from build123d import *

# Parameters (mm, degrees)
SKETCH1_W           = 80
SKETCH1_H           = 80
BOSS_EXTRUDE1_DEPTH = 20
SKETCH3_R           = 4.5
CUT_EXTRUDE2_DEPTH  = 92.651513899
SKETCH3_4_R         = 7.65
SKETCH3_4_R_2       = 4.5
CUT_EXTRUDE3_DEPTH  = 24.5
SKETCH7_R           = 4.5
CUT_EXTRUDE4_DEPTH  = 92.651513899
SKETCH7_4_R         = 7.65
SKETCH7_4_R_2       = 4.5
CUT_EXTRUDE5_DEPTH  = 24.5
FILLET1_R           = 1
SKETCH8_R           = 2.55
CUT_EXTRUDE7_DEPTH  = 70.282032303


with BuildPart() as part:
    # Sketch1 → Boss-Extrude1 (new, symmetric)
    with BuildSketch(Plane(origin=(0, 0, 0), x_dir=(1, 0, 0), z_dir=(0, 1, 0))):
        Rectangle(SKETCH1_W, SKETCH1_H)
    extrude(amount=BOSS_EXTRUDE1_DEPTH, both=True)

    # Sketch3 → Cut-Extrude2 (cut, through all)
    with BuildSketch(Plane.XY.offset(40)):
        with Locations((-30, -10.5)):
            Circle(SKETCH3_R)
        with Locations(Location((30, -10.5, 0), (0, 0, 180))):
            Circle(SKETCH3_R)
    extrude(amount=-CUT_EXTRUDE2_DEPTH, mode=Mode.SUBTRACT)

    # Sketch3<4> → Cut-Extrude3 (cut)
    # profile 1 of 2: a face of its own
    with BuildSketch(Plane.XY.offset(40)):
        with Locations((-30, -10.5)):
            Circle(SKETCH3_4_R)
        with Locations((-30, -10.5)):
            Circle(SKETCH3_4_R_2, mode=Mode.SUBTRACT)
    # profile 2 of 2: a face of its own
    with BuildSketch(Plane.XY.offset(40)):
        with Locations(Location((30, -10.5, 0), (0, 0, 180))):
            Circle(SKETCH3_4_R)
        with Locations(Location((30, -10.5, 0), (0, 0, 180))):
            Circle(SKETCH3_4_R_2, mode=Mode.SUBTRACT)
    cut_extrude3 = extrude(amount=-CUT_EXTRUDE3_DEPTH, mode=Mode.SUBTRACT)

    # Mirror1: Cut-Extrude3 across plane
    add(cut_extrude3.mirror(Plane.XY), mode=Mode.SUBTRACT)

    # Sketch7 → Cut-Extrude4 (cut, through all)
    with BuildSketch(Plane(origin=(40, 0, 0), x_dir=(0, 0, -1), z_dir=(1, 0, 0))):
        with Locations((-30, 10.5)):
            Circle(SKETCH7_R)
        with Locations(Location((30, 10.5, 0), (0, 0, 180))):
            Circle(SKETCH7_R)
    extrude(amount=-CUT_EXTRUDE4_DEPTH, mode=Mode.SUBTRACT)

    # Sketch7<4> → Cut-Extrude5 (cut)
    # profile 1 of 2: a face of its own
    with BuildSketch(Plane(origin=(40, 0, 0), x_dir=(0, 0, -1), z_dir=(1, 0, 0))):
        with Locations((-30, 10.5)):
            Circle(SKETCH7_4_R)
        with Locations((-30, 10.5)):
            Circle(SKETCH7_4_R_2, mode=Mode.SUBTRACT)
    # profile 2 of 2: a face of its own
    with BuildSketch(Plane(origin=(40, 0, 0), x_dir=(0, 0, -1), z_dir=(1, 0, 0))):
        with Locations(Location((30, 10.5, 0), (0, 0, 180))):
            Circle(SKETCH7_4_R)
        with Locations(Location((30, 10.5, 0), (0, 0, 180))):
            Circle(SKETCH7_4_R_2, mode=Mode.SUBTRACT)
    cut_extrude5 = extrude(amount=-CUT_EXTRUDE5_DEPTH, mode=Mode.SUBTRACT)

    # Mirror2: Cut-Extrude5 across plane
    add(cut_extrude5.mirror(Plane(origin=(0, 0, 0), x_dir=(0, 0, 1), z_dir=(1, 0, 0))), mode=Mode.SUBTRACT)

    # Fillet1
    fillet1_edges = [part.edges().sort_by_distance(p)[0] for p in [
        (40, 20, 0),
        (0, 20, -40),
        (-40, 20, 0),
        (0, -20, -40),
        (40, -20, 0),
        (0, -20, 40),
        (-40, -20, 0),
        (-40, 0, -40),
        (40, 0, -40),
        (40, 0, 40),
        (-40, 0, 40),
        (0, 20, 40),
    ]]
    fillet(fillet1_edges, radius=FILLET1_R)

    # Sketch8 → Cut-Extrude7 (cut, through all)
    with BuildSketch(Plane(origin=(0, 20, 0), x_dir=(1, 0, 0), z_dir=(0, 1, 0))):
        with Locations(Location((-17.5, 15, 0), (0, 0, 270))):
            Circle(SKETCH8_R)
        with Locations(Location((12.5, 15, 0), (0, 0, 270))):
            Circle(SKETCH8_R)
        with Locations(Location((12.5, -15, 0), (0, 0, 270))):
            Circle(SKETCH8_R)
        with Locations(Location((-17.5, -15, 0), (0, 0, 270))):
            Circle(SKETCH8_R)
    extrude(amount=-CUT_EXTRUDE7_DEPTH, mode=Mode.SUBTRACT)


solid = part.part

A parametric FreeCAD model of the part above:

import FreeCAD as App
import Part
import Sketcher
from FreeCAD import Vector


def edges_at(feature, points):
    """Names of the edges that pass closest to the given points."""
    edges = feature.Shape.Edges
    near = lambda p: min(range(len(edges)), key=lambda i: edges[i].distToShape(Part.Vertex(*p))[0])
    return sorted({f"Edge{near(p) + 1}" for p in points})


def add_polygon(sketch, points):
    """Adds a closed chain of lines whose ends are joined by coincident constraints."""
    first, n = sketch.GeometryCount, len(points)
    for a, b in zip(points, points[1:] + points[:1]):
        sketch.addGeometry(Part.LineSegment(App.Vector(*a, 0), App.Vector(*b, 0)), False)
    for i in range(n):
        sketch.addConstraint(Sketcher.Constraint("Coincident", first + i, 2, first + (i + 1) % n, 1))

doc = App.newDocument("Part")
body = doc.addObject("PartDesign::Body", "Body")

# Sketch on XZ plane
sketch1 = doc.addObject("Sketcher::SketchObject", "Sketch")
body.addObject(sketch1)
sketch1.AttachmentSupport = (doc.XZ_Plane, [""])
sketch1.MapMode = "FlatFace"
add_polygon(sketch1, [(-40, -40), (-40, 40), (40, 40), (40, -40)])  # lines 0-3
sketch1.addConstraint([
    Sketcher.Constraint("Vertical", 0),
    Sketcher.Constraint("Horizontal", 1),
    Sketcher.Constraint("Vertical", 2),
    Sketcher.Constraint("Horizontal", 3),
    Sketcher.Constraint("Symmetric", 0, 2, 2, 2, -1, 1),
    Sketcher.Constraint("Equal", 3, 0),
    Sketcher.Constraint("DistanceX", 1, 1, 1, 2, 80.0),
])
pad1 = doc.addObject("PartDesign::Pad", "Pad")
body.addObject(pad1)
pad1.Profile = sketch1
pad1.Length = 40
pad1.Midplane = True

# Sketch on XY plane
sketch2 = doc.addObject("Sketcher::SketchObject", "Sketch001")
body.addObject(sketch2)
sketch2.AttachmentSupport = (doc.XY_Plane, [""])
sketch2.MapMode = "FlatFace"
sketch2.AttachmentOffset = App.Placement(Vector(0, 0, 40), App.Rotation())
sketch2.addGeometry([
    Part.Circle(Vector(-30, -10.5, 0), Vector(0, 0, 1), 4.5),
    Part.Circle(Vector(30, -10.5, 0), Vector(0, 0, 1), 4.5),
], False)
sketch2.addConstraint([
    Sketcher.Constraint("Equal", 0, 1),
    Sketcher.Constraint("Symmetric", 0, 3, 1, 3, -2),
    Sketcher.Constraint("Diameter", 0, 9.0),
    Sketcher.Constraint("DistanceX", 0, 3, -1, 1, 30.0),
    Sketcher.Constraint("DistanceY", 0, 3, -1, 1, 10.5),
])
pocket1 = doc.addObject("PartDesign::Pocket", "Pocket")
body.addObject(pocket1)
pocket1.Profile = sketch2
pocket1.Type = "ThroughAll"

# Sketch on XY plane
sketch3 = doc.addObject("Sketcher::SketchObject", "Sketch002")
body.addObject(sketch3)
sketch3.AttachmentSupport = (doc.XY_Plane, [""])
sketch3.MapMode = "FlatFace"
sketch3.AttachmentOffset = App.Placement(Vector(0, 0, 40), App.Rotation())
sketch3.addGeometry([
    Part.Circle(Vector(-30, -10.5, 0), Vector(0, 0, 1), 7.7),
    Part.Circle(Vector(-30, -10.5, 0), Vector(0, 0, 1), 4.5),
    Part.Circle(Vector(30, -10.5, 0), Vector(0, 0, 1), 7.7),
    Part.Circle(Vector(30, -10.5, 0), Vector(0, 0, 1), 4.5),
], False)
sketch3.addConstraint([
    Sketcher.Constraint("Coincident", 1, 3, 0, 3),
    Sketcher.Constraint("Coincident", 3, 3, 2, 3),
    Sketcher.Constraint("Equal", 0, 2),
    Sketcher.Constraint("Equal", 1, 3),
    Sketcher.Constraint("Symmetric", 0, 3, 2, 3, -2),
    Sketcher.Constraint("Diameter", 1, 9.0),
    Sketcher.Constraint("Diameter", 0, 15.3),
    Sketcher.Constraint("DistanceX", 0, 3, -1, 1, 30.0),
    Sketcher.Constraint("DistanceY", 0, 3, -1, 1, 10.5),
])
pocket2 = doc.addObject("PartDesign::Pocket", "Pocket001")
body.addObject(pocket2)
pocket2.Profile = sketch3
pocket2.Length = 24.5
doc.recompute()

mirrored = doc.addObject("PartDesign::Mirrored", "Mirrored")
body.addObject(mirrored)
mirrored.Originals = [pocket2]
mirrored.MirrorPlane = (doc.XY_Plane, [""])
body.Tip = mirrored

# Sketch on YZ plane
sketch4 = doc.addObject("Sketcher::SketchObject", "Sketch003")
body.addObject(sketch4)
sketch4.AttachmentSupport = (doc.YZ_Plane, [""])
sketch4.MapMode = "FlatFace"
sketch4.AttachmentOffset = App.Placement(Vector(0, 0, 40), App.Rotation())
sketch4.addGeometry([
    Part.Circle(Vector(10.5, 30, 0), Vector(0, 0, 1), 4.5),
    Part.Circle(Vector(10.5, -30, 0), Vector(0, 0, 1), 4.5),
], False)
sketch4.addConstraint([
    Sketcher.Constraint("Equal", 0, 1),
    Sketcher.Constraint("Symmetric", 0, 3, 1, 3, -1),
    Sketcher.Constraint("Diameter", 0, 9.0),
    Sketcher.Constraint("DistanceY", -1, 1, 0, 3, 30.0),
    Sketcher.Constraint("DistanceX", -1, 1, 0, 3, 10.5),
])
pocket3 = doc.addObject("PartDesign::Pocket", "Pocket002")
body.addObject(pocket3)
pocket3.Profile = sketch4
pocket3.Type = "ThroughAll"

# Sketch on YZ plane
sketch5 = doc.addObject("Sketcher::SketchObject", "Sketch004")
body.addObject(sketch5)
sketch5.AttachmentSupport = (doc.YZ_Plane, [""])
sketch5.MapMode = "FlatFace"
sketch5.AttachmentOffset = App.Placement(Vector(0, 0, 40), App.Rotation())
sketch5.addGeometry([
    Part.Circle(Vector(10.5, 30, 0), Vector(0, 0, 1), 7.7),
    Part.Circle(Vector(10.5, 30, 0), Vector(0, 0, 1), 4.5),
    Part.Circle(Vector(10.5, -30, 0), Vector(0, 0, 1), 7.7),
    Part.Circle(Vector(10.5, -30, 0), Vector(0, 0, 1), 4.5),
], False)
sketch5.addConstraint([
    Sketcher.Constraint("Coincident", 1, 3, 0, 3),
    Sketcher.Constraint("Coincident", 3, 3, 2, 3),
    Sketcher.Constraint("Equal", 0, 2),
    Sketcher.Constraint("Equal", 1, 3),
    Sketcher.Constraint("Symmetric", 0, 3, 2, 3, -1),
    Sketcher.Constraint("Diameter", 1, 9.0),
    Sketcher.Constraint("Diameter", 0, 15.3),
    Sketcher.Constraint("DistanceY", -1, 1, 0, 3, 30.0),
    Sketcher.Constraint("DistanceX", -1, 1, 0, 3, 10.5),
])
pocket4 = doc.addObject("PartDesign::Pocket", "Pocket003")
body.addObject(pocket4)
pocket4.Profile = sketch5
pocket4.Length = 24.5
doc.recompute()

mirrored2 = doc.addObject("PartDesign::Mirrored", "Mirrored001")
body.addObject(mirrored2)
mirrored2.Originals = [pocket4]
mirrored2.MirrorPlane = (doc.YZ_Plane, [""])
body.Tip = mirrored2
doc.recompute()

fillet = doc.addObject("PartDesign::Fillet", "Fillet")
body.addObject(fillet)
fillet.Base = (mirrored2, edges_at(mirrored2, [
    (40, 20, 0),
    (0, 20, -40),
    (-40, 20, 0),
    (0, -20, -40),
    (40, -20, 0),
    (0, -20, 40),
    (-40, -20, 0),
    (-40, 0, -40),
    (40, 0, -40),
    (40, 0, 40),
    (-40, 0, 40),
    (0, 20, 40),
]))
fillet.Radius = 1

# Sketch on XZ plane
sketch6 = doc.addObject("Sketcher::SketchObject", "Sketch005")
body.addObject(sketch6)
sketch6.AttachmentSupport = (doc.XZ_Plane, [""])
sketch6.MapMode = "FlatFace"
sketch6.AttachmentOffset = App.Placement(Vector(0, 0, -20), App.Rotation())
sketch6.addGeometry([
    Part.Circle(Vector(-17.5, -15, 0), Vector(0, 0, 1), 2.5),
    Part.Circle(Vector(12.5, -15, 0), Vector(0, 0, 1), 2.5),
    Part.Circle(Vector(12.5, 15, 0), Vector(0, 0, 1), 2.5),
    Part.Circle(Vector(-17.5, 15, 0), Vector(0, 0, 1), 2.5),
], False)
sketch6.addConstraint([
    Sketcher.Constraint("Equal", 0, 1),
    Sketcher.Constraint("Equal", 1, 2),
    Sketcher.Constraint("Equal", 2, 3),
    Sketcher.Constraint("Symmetric", 1, 3, 2, 3, -1),
    Sketcher.Constraint("Symmetric", 0, 3, 3, 3, -1),
    Sketcher.Constraint("Horizontal", 0, 3, 1, 3),
    Sketcher.Constraint("Diameter", 0, 5.1),
    Sketcher.Constraint("DistanceY", 0, 3, -1, 1, 15.0),
    Sketcher.Constraint("DistanceX", 0, 3, 1, 3, 30.0),
    Sketcher.Constraint("DistanceX", 0, 3, -1, 1, 17.5),
])
pocket5 = doc.addObject("PartDesign::Pocket", "Pocket004")
body.addObject(pocket5)
pocket5.Profile = sketch6
pocket5.Type = "ThroughAll"
pocket5.Reversed = True

doc.recompute()
